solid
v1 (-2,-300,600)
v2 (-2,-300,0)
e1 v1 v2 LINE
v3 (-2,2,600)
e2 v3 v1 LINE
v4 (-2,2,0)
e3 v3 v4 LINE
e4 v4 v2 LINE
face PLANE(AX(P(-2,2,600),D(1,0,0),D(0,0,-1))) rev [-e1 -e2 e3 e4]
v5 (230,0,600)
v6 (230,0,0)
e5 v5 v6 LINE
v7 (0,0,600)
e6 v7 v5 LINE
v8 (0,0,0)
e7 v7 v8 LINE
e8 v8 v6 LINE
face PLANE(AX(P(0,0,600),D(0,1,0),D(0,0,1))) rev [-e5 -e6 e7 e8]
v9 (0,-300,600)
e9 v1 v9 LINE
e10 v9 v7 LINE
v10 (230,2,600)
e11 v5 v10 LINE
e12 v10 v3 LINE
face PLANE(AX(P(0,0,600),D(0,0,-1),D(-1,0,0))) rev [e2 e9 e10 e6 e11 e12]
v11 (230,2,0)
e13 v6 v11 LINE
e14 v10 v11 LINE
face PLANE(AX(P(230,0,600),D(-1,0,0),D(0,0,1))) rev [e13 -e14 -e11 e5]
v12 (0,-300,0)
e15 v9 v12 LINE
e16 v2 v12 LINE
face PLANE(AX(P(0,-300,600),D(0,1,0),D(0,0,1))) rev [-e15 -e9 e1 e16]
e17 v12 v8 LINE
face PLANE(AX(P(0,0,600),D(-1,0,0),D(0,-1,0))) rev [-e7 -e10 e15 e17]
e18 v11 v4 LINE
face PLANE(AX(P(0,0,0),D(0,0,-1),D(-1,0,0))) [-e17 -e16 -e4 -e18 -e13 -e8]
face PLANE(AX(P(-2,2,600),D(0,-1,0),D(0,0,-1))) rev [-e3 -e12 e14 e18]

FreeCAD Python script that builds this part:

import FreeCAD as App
import Part
import Sketcher
from FreeCAD import Vector
Q = App.Units.Quantity


def add_polygon(sketch, points):
    """Adds a closed chain of lines whose ends are joined by coincident constraints."""
    first, n = sketch.GeometryCount, len(points)
    for a, b in zip(points, points[1:] + points[:1]):
        sketch.addGeometry(Part.LineSegment(App.Vector(*a, 0), App.Vector(*b, 0)), False)
    for i in range(n):
        sketch.addConstraint(Sketcher.Constraint("Coincident", first + i, 2, first + (i + 1) % n, 1))

doc = App.newDocument("Part")
params = doc.addObject("Spreadsheet::Sheet", "Params")
for row, (alias, value) in enumerate([
    ("sketch1_width", "230 mm"),
    ("sketch1_width2", "232 mm"),
    ("sketch1_height", "302 mm"),
    ("pad1_length", "600 mm"),
], start=1):
    params.set(f"A{row}", alias)
    params.set(f"B{row}", "=" + value)
    params.setAlias(f"B{row}", alias)

body = doc.addObject("PartDesign::Body", "Body")

sketch1 = doc.addObject("Sketcher::SketchObject", "Sketch")
body.addObject(sketch1)
sketch1.AttachmentSupport = (doc.XY_Plane, [""])
sketch1.MapMode = "FlatFace"
add_polygon(sketch1, [(0, 0), (230, 0), (230, 2), (-2, 2), (-2, -300), (0, -300)])
sketch1.addConstraint([
    Sketcher.Constraint("Horizontal", 0),
    Sketcher.Constraint("Vertical", 1),
    Sketcher.Constraint("Horizontal", 2),
    Sketcher.Constraint("Vertical", 3),
    Sketcher.Constraint("Horizontal", 4),
    Sketcher.Constraint("Vertical", 5),
    Sketcher.Constraint("Coincident", 5, 2, -1, 1),
    Sketcher.Constraint("Equal", 4, 1),
    Sketcher.Constraint("DistanceX", 0, 1, 0, 2, Q("230 mm")),
    Sketcher.Constraint("DistanceX", 2, 2, 2, 1, Q("232 mm")),
    Sketcher.Constraint("DistanceY", 3, 2, 3, 1, Q("302 mm")),
])
sketch1.setExpression("Constraints[14]", "Params.sketch1_width")
sketch1.setExpression("Constraints[15]", "Params.sketch1_width2")
sketch1.setExpression("Constraints[16]", "Params.sketch1_height")
pad1 = doc.addObject("PartDesign::Pad", "Pad")
body.addObject(pad1)
pad1.Profile = sketch1
pad1.setExpression("Length", "Params.pad1_length")

doc.recompute()
